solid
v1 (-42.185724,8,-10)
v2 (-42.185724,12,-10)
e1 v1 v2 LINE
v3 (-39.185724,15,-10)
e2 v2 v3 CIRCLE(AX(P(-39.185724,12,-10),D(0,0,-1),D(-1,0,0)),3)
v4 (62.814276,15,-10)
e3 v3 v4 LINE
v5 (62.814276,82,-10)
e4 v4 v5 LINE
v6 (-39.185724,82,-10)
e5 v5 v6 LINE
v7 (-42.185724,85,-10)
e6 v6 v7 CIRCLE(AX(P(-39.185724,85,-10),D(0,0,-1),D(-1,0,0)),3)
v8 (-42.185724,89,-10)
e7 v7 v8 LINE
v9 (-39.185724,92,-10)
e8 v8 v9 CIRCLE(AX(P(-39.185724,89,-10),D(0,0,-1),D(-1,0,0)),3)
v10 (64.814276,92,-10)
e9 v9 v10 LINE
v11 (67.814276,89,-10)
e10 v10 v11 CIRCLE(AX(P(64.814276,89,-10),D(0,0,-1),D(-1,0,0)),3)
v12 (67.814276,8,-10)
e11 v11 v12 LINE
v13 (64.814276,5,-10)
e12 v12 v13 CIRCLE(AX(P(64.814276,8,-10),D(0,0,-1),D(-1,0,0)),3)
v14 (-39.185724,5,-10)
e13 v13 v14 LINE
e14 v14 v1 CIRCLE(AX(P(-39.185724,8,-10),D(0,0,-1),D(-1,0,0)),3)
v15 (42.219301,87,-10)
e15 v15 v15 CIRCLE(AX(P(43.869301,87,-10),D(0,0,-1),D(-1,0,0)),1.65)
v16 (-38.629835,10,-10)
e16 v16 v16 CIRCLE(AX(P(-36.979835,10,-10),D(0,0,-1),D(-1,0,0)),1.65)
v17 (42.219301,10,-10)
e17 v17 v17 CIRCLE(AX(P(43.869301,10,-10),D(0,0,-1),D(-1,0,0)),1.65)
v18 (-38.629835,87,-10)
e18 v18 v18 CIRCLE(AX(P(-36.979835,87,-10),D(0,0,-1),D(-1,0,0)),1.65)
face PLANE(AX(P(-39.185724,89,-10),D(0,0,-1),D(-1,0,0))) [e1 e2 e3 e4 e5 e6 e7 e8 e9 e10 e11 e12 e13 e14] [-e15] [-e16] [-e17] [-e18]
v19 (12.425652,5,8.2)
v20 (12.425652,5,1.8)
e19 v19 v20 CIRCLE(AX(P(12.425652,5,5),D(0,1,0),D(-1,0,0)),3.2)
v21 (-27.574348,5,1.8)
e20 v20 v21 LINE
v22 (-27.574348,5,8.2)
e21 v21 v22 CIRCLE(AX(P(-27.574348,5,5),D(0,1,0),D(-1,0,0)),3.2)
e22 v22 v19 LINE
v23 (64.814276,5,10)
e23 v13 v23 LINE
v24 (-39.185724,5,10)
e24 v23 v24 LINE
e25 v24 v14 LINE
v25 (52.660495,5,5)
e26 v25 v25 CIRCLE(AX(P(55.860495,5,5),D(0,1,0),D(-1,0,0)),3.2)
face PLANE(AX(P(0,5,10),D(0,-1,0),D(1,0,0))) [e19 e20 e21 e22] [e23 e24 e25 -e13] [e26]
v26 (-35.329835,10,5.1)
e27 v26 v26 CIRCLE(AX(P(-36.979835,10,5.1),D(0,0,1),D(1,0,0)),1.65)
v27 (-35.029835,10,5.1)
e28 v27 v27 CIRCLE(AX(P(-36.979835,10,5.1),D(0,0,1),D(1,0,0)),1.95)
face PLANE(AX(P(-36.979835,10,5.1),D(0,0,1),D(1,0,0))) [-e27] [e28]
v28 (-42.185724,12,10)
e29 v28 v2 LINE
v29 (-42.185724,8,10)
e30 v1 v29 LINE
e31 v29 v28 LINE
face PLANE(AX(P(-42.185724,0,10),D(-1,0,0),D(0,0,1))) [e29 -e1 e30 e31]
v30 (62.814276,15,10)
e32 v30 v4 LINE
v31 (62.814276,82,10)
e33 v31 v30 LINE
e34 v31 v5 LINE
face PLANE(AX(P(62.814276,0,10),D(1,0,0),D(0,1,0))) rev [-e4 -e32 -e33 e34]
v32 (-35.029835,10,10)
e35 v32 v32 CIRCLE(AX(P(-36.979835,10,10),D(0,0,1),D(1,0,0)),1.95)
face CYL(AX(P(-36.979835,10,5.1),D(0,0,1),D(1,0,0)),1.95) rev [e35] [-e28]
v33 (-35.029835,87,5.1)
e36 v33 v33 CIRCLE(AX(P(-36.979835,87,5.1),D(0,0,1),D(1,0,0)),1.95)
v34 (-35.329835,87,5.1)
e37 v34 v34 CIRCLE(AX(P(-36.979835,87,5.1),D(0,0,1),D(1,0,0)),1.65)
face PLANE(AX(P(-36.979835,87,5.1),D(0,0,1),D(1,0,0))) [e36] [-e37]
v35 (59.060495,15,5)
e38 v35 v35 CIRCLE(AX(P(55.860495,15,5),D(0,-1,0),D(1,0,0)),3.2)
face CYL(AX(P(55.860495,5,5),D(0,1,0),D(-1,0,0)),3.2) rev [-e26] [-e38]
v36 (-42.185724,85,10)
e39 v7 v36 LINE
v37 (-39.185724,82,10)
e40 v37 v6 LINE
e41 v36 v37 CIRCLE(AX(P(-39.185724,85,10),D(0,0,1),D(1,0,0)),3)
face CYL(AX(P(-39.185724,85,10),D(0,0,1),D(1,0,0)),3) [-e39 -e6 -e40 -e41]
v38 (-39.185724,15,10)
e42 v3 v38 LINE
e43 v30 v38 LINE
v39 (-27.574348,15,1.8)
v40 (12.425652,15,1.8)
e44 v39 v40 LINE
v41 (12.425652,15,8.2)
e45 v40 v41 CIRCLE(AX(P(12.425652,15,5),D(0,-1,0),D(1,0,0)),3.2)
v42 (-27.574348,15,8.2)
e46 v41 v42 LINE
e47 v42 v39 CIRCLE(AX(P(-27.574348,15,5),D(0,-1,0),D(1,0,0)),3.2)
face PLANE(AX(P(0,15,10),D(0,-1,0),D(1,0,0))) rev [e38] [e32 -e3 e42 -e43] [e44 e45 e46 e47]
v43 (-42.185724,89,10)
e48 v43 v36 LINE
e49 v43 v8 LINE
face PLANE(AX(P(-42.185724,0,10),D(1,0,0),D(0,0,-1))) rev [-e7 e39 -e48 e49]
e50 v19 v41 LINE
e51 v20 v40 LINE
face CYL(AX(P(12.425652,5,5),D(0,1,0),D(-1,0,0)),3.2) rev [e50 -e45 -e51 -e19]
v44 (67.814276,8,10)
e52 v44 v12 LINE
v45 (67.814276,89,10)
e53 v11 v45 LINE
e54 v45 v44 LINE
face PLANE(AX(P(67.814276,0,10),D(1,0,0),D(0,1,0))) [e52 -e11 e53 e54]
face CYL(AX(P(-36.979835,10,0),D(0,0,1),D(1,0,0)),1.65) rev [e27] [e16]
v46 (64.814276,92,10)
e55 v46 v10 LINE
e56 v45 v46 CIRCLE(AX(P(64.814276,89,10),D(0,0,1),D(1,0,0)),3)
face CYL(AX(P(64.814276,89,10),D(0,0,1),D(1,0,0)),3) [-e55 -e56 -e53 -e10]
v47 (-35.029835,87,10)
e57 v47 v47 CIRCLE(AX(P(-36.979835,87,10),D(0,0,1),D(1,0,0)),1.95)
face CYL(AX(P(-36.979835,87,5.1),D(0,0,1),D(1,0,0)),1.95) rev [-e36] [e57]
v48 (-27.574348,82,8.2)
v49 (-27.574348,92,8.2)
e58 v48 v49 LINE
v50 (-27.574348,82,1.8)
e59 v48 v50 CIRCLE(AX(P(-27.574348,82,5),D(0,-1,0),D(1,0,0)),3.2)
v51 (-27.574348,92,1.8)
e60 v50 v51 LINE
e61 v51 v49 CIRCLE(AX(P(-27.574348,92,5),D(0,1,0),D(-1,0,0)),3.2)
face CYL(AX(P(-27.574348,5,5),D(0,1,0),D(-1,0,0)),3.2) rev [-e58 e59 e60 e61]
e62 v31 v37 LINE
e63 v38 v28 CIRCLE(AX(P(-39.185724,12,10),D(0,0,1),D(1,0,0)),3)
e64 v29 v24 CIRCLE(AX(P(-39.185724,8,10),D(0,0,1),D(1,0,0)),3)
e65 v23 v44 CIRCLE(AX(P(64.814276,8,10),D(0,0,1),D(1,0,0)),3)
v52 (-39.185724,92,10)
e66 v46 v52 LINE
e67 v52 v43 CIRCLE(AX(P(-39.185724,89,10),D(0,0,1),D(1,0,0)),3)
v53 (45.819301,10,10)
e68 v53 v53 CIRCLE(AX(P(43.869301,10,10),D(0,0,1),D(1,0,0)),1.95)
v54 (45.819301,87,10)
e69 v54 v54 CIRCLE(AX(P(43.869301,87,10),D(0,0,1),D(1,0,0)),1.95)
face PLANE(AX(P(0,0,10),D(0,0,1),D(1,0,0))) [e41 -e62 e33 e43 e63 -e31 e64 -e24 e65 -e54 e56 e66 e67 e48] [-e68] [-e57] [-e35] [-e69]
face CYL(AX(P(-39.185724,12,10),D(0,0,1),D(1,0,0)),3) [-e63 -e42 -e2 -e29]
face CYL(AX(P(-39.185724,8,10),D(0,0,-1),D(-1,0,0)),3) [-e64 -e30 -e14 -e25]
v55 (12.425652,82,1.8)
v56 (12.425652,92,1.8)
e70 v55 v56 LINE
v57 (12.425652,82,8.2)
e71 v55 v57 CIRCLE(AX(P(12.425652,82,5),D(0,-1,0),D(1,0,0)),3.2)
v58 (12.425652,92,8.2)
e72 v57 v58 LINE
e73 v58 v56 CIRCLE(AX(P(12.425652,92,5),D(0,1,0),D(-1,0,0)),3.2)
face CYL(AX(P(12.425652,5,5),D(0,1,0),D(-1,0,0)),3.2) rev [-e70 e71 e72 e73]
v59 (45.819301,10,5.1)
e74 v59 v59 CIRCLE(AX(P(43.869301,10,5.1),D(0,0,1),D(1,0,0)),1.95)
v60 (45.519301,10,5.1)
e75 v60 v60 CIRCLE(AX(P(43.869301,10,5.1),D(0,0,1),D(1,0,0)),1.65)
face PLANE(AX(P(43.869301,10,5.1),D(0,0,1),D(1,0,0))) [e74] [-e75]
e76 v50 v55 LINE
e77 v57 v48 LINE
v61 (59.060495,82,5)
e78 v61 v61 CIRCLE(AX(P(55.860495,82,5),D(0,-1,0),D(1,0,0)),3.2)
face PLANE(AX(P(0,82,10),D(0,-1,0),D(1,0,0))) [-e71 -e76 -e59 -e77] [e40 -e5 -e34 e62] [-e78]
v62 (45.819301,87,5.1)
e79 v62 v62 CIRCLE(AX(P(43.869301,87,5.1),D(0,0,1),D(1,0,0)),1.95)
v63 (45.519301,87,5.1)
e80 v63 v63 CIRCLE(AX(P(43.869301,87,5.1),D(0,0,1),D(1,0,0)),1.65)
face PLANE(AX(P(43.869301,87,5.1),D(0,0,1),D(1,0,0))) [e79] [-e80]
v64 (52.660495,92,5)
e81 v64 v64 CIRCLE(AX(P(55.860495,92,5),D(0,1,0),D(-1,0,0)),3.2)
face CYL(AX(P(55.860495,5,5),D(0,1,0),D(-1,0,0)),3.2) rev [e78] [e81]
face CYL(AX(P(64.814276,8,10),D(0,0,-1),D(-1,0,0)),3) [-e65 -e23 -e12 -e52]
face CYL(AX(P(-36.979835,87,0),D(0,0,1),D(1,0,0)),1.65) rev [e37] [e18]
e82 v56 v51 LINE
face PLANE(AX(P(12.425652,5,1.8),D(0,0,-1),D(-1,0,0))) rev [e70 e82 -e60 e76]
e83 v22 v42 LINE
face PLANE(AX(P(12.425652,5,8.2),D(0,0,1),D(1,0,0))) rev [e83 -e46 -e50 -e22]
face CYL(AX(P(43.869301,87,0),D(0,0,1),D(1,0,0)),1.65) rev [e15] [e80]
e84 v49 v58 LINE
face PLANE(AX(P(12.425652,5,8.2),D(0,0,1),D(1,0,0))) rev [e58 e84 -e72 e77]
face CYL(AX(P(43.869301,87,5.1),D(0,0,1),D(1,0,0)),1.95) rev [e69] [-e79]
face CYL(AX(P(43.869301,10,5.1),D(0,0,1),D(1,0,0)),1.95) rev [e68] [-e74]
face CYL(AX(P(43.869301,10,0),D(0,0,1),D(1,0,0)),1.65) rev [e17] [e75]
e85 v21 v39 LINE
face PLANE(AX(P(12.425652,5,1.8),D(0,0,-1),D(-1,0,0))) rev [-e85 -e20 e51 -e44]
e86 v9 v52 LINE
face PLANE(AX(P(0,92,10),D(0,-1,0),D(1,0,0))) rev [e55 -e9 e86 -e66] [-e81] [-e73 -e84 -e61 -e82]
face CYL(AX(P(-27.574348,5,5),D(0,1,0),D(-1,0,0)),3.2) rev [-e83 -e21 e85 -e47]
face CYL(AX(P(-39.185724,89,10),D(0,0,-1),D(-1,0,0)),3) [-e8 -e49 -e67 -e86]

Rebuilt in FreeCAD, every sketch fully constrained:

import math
import FreeCAD as App
import Part
import Sketcher

V = App.Vector
Q = App.Units.Quantity


def edges_at(feature, points):
    """Names of the edges that pass closest to the given points."""
    edges = feature.Shape.Edges
    near = lambda p: min(range(len(edges)), key=lambda i: edges[i].distToShape(Part.Vertex(*p))[0])
    return sorted({f"Edge{near(p) + 1}" for p in points})

doc = App.newDocument("Part")
body = doc.addObject("PartDesign::Body", "Body")

# Sketch on XY plane
sketch1 = doc.addObject("Sketcher::SketchObject", "Sketch")
body.addObject(sketch1)
sketch1.AttachmentSupport = (doc.XY_Plane, [""])
sketch1.MapMode = "FlatFace"
sketch1.addGeometry([
    Part.LineSegment(V(-42, 92, 0), V(-42, 82, 0)),  # 0
    Part.LineSegment(V(-42, 82, 0), V(63, 82, 0)),  # 1
    Part.LineSegment(V(63, 82, 0), V(63, 15, 0)),  # 2
    Part.LineSegment(V(63, 15, 0), V(-42, 15, 0)),  # 3
    Part.LineSegment(V(-42, 15, 0), V(-42, 5, 0)),  # 4
    Part.LineSegment(V(-42, 5, 0), V(68, 5, 0)),  # 5
    Part.LineSegment(V(68, 5, 0), V(68, 92, 0)),  # 6
    Part.LineSegment(V(68, 92, 0), V(-42, 92, 0)),  # 7
], False)
sketch1.addConstraint([
    Sketcher.Constraint("Coincident", 0, 2, 1, 1),
    Sketcher.Constraint("Coincident", 1, 2, 2, 1),
    Sketcher.Constraint("Coincident", 2, 2, 3, 1),
    Sketcher.Constraint("Coincident", 3, 2, 4, 1),
    Sketcher.Constraint("Coincident", 4, 2, 5, 1),
    Sketcher.Constraint("Coincident", 5, 2, 6, 1),
    Sketcher.Constraint("Coincident", 6, 2, 7, 1),
    Sketcher.Constraint("Coincident", 7, 2, 0, 1),
    Sketcher.Constraint("Vertical", 0),
    Sketcher.Constraint("Horizontal", 1),
    Sketcher.Constraint("Vertical", 2),
    Sketcher.Constraint("Horizontal", 3),
    Sketcher.Constraint("Vertical", 4),
    Sketcher.Constraint("Horizontal", 5),
    Sketcher.Constraint("Vertical", 6),
    Sketcher.Constraint("Horizontal", 7),
    Sketcher.Constraint("Vertical", 0, 2, 3, 2),
    Sketcher.Constraint("Equal", 0, 4),
    Sketcher.Constraint("DistanceX", 1, 1, 1, 2, Q("105 mm")),
    Sketcher.Constraint("DistanceX", 5, 1, 5, 2, Q("110 mm")),
    Sketcher.Constraint("DistanceY", 0, 2, 0, 1, Q("10 mm")),
    Sketcher.Constraint("DistanceY", 2, 2, 2, 1, Q("67 mm")),
    Sketcher.Constraint("DistanceY", -1, 1, 0, 2, Q("82 mm")),
    Sketcher.Constraint("DistanceX", 0, 2, -1, 1, Q("42.185724 mm")),
])
pad1 = doc.addObject("PartDesign::Pad", "Pad")
body.addObject(pad1)
pad1.Profile = sketch1
pad1.Length = 10

# Sketch on XZ plane
sketch2 = doc.addObject("Sketcher::SketchObject", "Sketch001")
body.addObject(sketch2)
sketch2.AttachmentSupport = (doc.XZ_Plane, [""])
sketch2.MapMode = "FlatFace"
sketch2.AttachmentOffset = App.Placement(V(0, 0, -92), App.Rotation())
sketch2.addGeometry([
    Part.Circle(V(55.9, 5, 0), V(0, 0, 1), 3.2),  # 0
    Part.LineSegment(V(-27.6, 8.2, 0), V(12.4, 8.2, 0)),  # 1
    Part.ArcOfCircle(Part.Circle(V(12.4, 5, 0), V(0, 0, 1), 3.2), math.radians(-90), math.radians(90)),  # 2
    Part.LineSegment(V(12.4, 1.8, 0), V(-27.6, 1.8, 0)),  # 3
    Part.ArcOfCircle(Part.Circle(V(-27.6, 5, 0), V(0, 0, 1), 3.2), math.radians(90), math.radians(270)),  # 4
], False)
sketch2.addConstraint([
    Sketcher.Constraint("Tangent", 1, 2, 2, 2),
    Sketcher.Constraint("Tangent", 2, 1, 3, 1),
    Sketcher.Constraint("Tangent", 3, 2, 4, 2),
    Sketcher.Constraint("Tangent", 4, 1, 1, 1),
    Sketcher.Constraint("Horizontal", 1),
    Sketcher.Constraint("Horizontal", 3),
    Sketcher.Constraint("Equal", 0, 2),
    Sketcher.Constraint("Horizontal", 0, 3, 2, 3),
    Sketcher.Constraint("Diameter", 0, Q("6.4 mm")),
    Sketcher.Constraint("DistanceX", 1, 1, 1, 2, Q("40 mm")),
    Sketcher.Constraint("DistanceY", -1, 1, 0, 3, Q("5 mm")),
    Sketcher.Constraint("DistanceX", -1, 1, 0, 3, Q("55.860495 mm")),
    Sketcher.Constraint("DistanceX", -1, 1, 2, 3, Q("12.425652 mm")),
])
pocket1 = doc.addObject("PartDesign::Pocket", "Pocket")
body.addObject(pocket1)
pocket1.Profile = sketch2
pocket1.Type = "ThroughAll"
pocket1.Reversed = True

# Sketch on XY plane
sketch3 = doc.addObject("Sketcher::SketchObject", "Sketch002")
body.addObject(sketch3)
sketch3.AttachmentSupport = (doc.XY_Plane, [""])
sketch3.MapMode = "FlatFace"
sketch3.AttachmentOffset = App.Placement(V(0, 0, 10), App.Rotation())
sketch3.addGeometry([
    Part.Circle(V(-37, 87, 0), V(0, 0, 1), 1.9),
    Part.Circle(V(-37, 10, 0), V(0, 0, 1), 1.9),
    Part.Circle(V(43.9, 10, 0), V(0, 0, 1), 1.9),
    Part.Circle(V(43.9, 87, 0), V(0, 0, 1), 1.9),
], False)
sketch3.addConstraint([
    Sketcher.Constraint("Equal", 0, 1),
    Sketcher.Constraint("Equal", 1, 2),
    Sketcher.Constraint("Equal", 2, 3),
    Sketcher.Constraint("Horizontal", 1, 3, 2, 3),
    Sketcher.Constraint("Horizontal", 0, 3, 3, 3),
    Sketcher.Constraint("Vertical", 0, 3, 1, 3),
    Sketcher.Constraint("Vertical", 2, 3, 3, 3),
    Sketcher.Constraint("Diameter", 0, Q("3.9 mm")),
    Sketcher.Constraint("DistanceY", -1, 1, 0, 3, Q("87 mm")),
    Sketcher.Constraint("DistanceY", -1, 1, 1, 3, Q("10 mm")),
    Sketcher.Constraint("DistanceX", -1, 1, 2, 3, Q("43.869301 mm")),
    Sketcher.Constraint("DistanceX", 0, 3, -1, 1, Q("36.979835 mm")),
])
pocket2 = doc.addObject("PartDesign::Pocket", "Pocket001")
body.addObject(pocket2)
pocket2.Profile = sketch3
pocket2.Length = 4.9

# Sketch on XY plane
sketch4 = doc.addObject("Sketcher::SketchObject", "Sketch003")
body.addObject(sketch4)
sketch4.AttachmentSupport = (doc.XY_Plane, [""])
sketch4.MapMode = "FlatFace"
sketch4.AttachmentOffset = App.Placement(V(0, 0, 5.1), App.Rotation())
sketch4.addGeometry([
    Part.Circle(V(-37, 87, 0), V(0, 0, 1), 1.6),
    Part.Circle(V(-37, 10, 0), V(0, 0, 1), 1.6),
    Part.Circle(V(43.9, 10, 0), V(0, 0, 1), 1.6),
    Part.Circle(V(43.9, 87, 0), V(0, 0, 1), 1.6),
], False)
sketch4.addConstraint([
    Sketcher.Constraint("Equal", 0, 1),
    Sketcher.Constraint("Equal", 1, 2),
    Sketcher.Constraint("Equal", 2, 3),
    Sketcher.Constraint("Horizontal", 1, 3, 2, 3),
    Sketcher.Constraint("Horizontal", 0, 3, 3, 3),
    Sketcher.Constraint("Vertical", 0, 3, 1, 3),
    Sketcher.Constraint("Vertical", 2, 3, 3, 3),
    Sketcher.Constraint("Diameter", 0, Q("3.3 mm")),
    Sketcher.Constraint("DistanceY", -1, 1, 0, 3, Q("87 mm")),
    Sketcher.Constraint("DistanceY", -1, 1, 1, 3, Q("10 mm")),
    Sketcher.Constraint("DistanceX", -1, 1, 2, 3, Q("43.869301 mm")),
    Sketcher.Constraint("DistanceX", 0, 3, -1, 1, Q("36.979835 mm")),
])
pocket3 = doc.addObject("PartDesign::Pocket", "Pocket002")
body.addObject(pocket3)
pocket3.Profile = sketch4
pocket3.Type = "ThroughAll"
doc.recompute()

fillet = doc.addObject("PartDesign::Fillet", "Fillet")
body.addObject(fillet)
fillet.Base = (pocket3, edges_at(pocket3, [
    (-42.186, 82, 5),
    (-42.186, 92, 5),
    (67.814, 92, 5),
    (67.814, 5, 5),
    (-42.186, 5, 5),
    (-42.186, 15, 5),
]))
fillet.Radius = 3

# Sketch on XY plane
sketch5 = doc.addObject("Sketcher::SketchObject", "Sketch004")
body.addObject(sketch5)
sketch5.AttachmentSupport = (doc.XY_Plane, [""])
sketch5.MapMode = "FlatFace"
sketch5.addGeometry([
    Part.LineSegment(V(-39.2, 92, 0), V(64.8, 92, 0)),  # 0
    Part.ArcOfCircle(Part.Circle(V(64.8, 89, 0), V(0, 0, 1), 3), math.radians(0), math.radians(90)),  # 1
    Part.LineSegment(V(67.8, 89, 0), V(67.8, 8, 0)),  # 2
    Part.ArcOfCircle(Part.Circle(V(64.8, 8, 0), V(0, 0, 1), 3), math.radians(-90), math.radians(0)),  # 3
    Part.LineSegment(V(64.8, 5, 0), V(-39.2, 5, 0)),  # 4
    Part.ArcOfCircle(Part.Circle(V(-39.2, 8, 0), V(0, 0, 1), 3), math.radians(180), math.radians(270)),  # 5
    Part.LineSegment(V(-42.2, 8, 0), V(-42.2, 12, 0)),  # 6
    Part.ArcOfCircle(Part.Circle(V(-39.2, 12, 0), V(0, 0, 1), 3), math.radians(90), math.radians(180)),  # 7
    Part.LineSegment(V(-39.2, 15, 0), V(62.8, 15, 0)),  # 8
    Part.LineSegment(V(62.8, 15, 0), V(62.8, 82, 0)),  # 9
    Part.LineSegment(V(62.8, 82, 0), V(-39.2, 82, 0)),  # 10
    Part.ArcOfCircle(Part.Circle(V(-39.2, 85, 0), V(0, 0, 1), 3), math.radians(180), math.radians(270)),  # 11
    Part.LineSegment(V(-42.2, 85, 0), V(-42.2, 89, 0)),  # 12
    Part.ArcOfCircle(Part.Circle(V(-39.2, 89, 0), V(0, 0, 1), 3), math.radians(90), math.radians(180)),  # 13
    Part.Circle(V(43.9, 10, 0), V(0, 0, 1), 1.6),  # 14
    Part.Circle(V(-37, 10, 0), V(0, 0, 1), 1.6),  # 15
    Part.Circle(V(43.9, 87, 0), V(0, 0, 1), 1.6),  # 16
    Part.Circle(V(-37, 87, 0), V(0, 0, 1), 1.6),  # 17
], False)
sketch5.addConstraint([
    Sketcher.Constraint("Tangent", 0, 2, 1, 2),
    Sketcher.Constraint("Tangent", 1, 1, 2, 1),
    Sketcher.Constraint("Tangent", 2, 2, 3, 2),
    Sketcher.Constraint("Tangent", 3, 1, 4, 1),
    Sketcher.Constraint("Tangent", 4, 2, 5, 2),
    Sketcher.Constraint("Tangent", 5, 1, 6, 1),
    Sketcher.Constraint("Tangent", 6, 2, 7, 2),
    Sketcher.Constraint("Tangent", 7, 1, 8, 1),
    Sketcher.Constraint("Coincident", 8, 2, 9, 1),
    Sketcher.Constraint("Coincident", 9, 2, 10, 1),
    Sketcher.Constraint("Tangent", 10, 2, 11, 2),
    Sketcher.Constraint("Tangent", 11, 1, 12, 1),
    Sketcher.Constraint("Tangent", 12, 2, 13, 2),
    Sketcher.Constraint("Tangent", 13, 1, 0, 1),
    Sketcher.Constraint("Horizontal", 0),
    Sketcher.Constraint("Vertical", 2),
    Sketcher.Constraint("Horizontal", 4),
    Sketcher.Constraint("Vertical", 6),
    Sketcher.Constraint("Horizontal", 8),
    Sketcher.Constraint("Vertical", 9),
    Sketcher.Constraint("Horizontal", 10),
    Sketcher.Constraint("Vertical", 12),
    Sketcher.Constraint("Equal", 1, 3),
    Sketcher.Constraint("Equal", 3, 5),
    Sketcher.Constraint("Equal", 5, 7),
    Sketcher.Constraint("Equal", 7, 11),
    Sketcher.Constraint("Equal", 11, 13),
    Sketcher.Constraint("Equal", 14, 15),
    Sketcher.Constraint("Equal", 15, 16),
    Sketcher.Constraint("Equal", 16, 17),
    Sketcher.Constraint("Horizontal", 14, 3, 15, 3),
    Sketcher.Constraint("Horizontal", 16, 3, 17, 3),
    Sketcher.Constraint("Vertical", 7, 3, 11, 3),
    Sketcher.Constraint("Vertical", 14, 3, 16, 3),
    Sketcher.Constraint("Vertical", 15, 3, 17, 3),
    Sketcher.Constraint("Equal", 6, 12),
    Sketcher.Constraint("Radius", 1, Q("3 mm")),
    Sketcher.Constraint("Diameter", 14, Q("3.3 mm")),
    Sketcher.Constraint("DistanceX", 0, 1, 0, 2, Q("104 mm")),
    Sketcher.Constraint("DistanceX", 8, 1, 8, 2, Q("102 mm")),
    Sketcher.Constraint("DistanceY", 2, 2, 2, 1, Q("81 mm")),
    Sketcher.Constraint("DistanceY", 6, 1, 6, 2, Q("4 mm")),
    Sketcher.Constraint("DistanceY", -1, 1, 1, 3, Q("89 mm")),
    Sketcher.Constraint("DistanceY", -1, 1, 14, 3, Q("10 mm")),
    Sketcher.Constraint("DistanceY", -1, 1, 16, 3, Q("87 mm")),
    Sketcher.Constraint("DistanceX", -1, 1, 14, 3, Q("43.869301 mm")),
    Sketcher.Constraint("DistanceX", 5, 3, 15, 3, Q("2.205889 mm")),
    Sketcher.Constraint("DistanceX", -1, 1, 1, 3, Q("64.814276 mm")),
])
pad2 = doc.addObject("PartDesign::Pad", "Pad001")
body.addObject(pad2)
pad2.Profile = sketch5
pad2.Length = 10
pad2.Reversed = True

doc.recompute()
